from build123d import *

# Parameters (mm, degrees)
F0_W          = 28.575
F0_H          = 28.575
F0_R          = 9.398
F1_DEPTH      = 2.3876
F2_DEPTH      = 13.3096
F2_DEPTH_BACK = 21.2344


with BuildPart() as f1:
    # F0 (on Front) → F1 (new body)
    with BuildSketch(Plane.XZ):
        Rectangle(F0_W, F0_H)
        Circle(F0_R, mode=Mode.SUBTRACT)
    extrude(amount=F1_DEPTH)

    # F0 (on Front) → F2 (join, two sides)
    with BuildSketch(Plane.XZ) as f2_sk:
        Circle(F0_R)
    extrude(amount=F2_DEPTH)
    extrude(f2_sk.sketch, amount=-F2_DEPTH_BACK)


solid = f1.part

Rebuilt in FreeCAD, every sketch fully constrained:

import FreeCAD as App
import Part
import Sketcher
Q = App.Units.Quantity

doc = App.newDocument("Part")
params = doc.addObject("Spreadsheet::Sheet", "Params")
for row, (alias, value) in enumerate([
    ("sketch1_diameter", "0.74 in"),
    ("sketch1_width", "1.125 in"),
    ("pad1_length", "0.094 in"),
    ("sketch2_diameter", "0.74 in"),
    ("pad2_length", "0.524 in"),
    ("pad2_length2", "0.836 in"),
], start=1):
    params.set(f"A{row}", alias)
    params.set(f"B{row}", "=" + value)
    params.setAlias(f"B{row}", alias)

body = doc.addObject("PartDesign::Body", "Body")

# Sketch on XZ plane
sketch1 = doc.addObject("Sketcher::SketchObject", "Sketch")
body.addObject(sketch1)
sketch1.AttachmentSupport = (doc.XZ_Plane, [""])
sketch1.MapMode = "FlatFace"
sketch1.addGeometry([
    Part.LineSegment(App.Vector(-14, 14, 0), App.Vector(-14, -14, 0)),  # 0
    Part.LineSegment(App.Vector(-14, -14, 0), App.Vector(14, -14, 0)),  # 1
    Part.LineSegment(App.Vector(14, -14, 0), App.Vector(14, 14, 0)),  # 2
    Part.LineSegment(App.Vector(14, 14, 0), App.Vector(-14, 14, 0)),  # 3
    Part.Circle(App.Vector(0, 0, 0), App.Vector(0, 0, 1), 9),  # 4
], False)
sketch1.addConstraint([
    Sketcher.Constraint("Coincident", 0, 2, 1, 1),
    Sketcher.Constraint("Coincident", 1, 2, 2, 1),
    Sketcher.Constraint("Coincident", 2, 2, 3, 1),
    Sketcher.Constraint("Coincident", 3, 2, 0, 1),
    Sketcher.Constraint("Vertical", 0),
    Sketcher.Constraint("Horizontal", 1),
    Sketcher.Constraint("Vertical", 2),
    Sketcher.Constraint("Horizontal", 3),
    Sketcher.Constraint("Coincident", 4, 3, -1, 1),
    Sketcher.Constraint("Symmetric", 0, 2, 2, 2, -1, 1),
    Sketcher.Constraint("Equal", 3, 0),
    Sketcher.Constraint("Diameter", 4, Q("0.74 in")),
    Sketcher.Constraint("DistanceX", 1, 1, 1, 2, Q("1.125 in")),
])
sketch1.setExpression("Constraints[11]", "Params.sketch1_diameter")
sketch1.setExpression("Constraints[12]", "Params.sketch1_width")
pad1 = doc.addObject("PartDesign::Pad", "Pad")
body.addObject(pad1)
pad1.Profile = sketch1
pad1.setExpression("Length", "Params.pad1_length")

# Sketch on XZ plane
sketch2 = doc.addObject("Sketcher::SketchObject", "Sketch001")
body.addObject(sketch2)
sketch2.AttachmentSupport = (doc.XZ_Plane, [""])
sketch2.MapMode = "FlatFace"
sketch2.addGeometry(Part.Circle(App.Vector(0, 0, 0), App.Vector(0, 0, 1), 9), False)
sketch2.addConstraint([
    Sketcher.Constraint("Coincident", 0, 3, -1, 1),
    Sketcher.Constraint("Diameter", 0, Q("0.74 in")),
])
sketch2.setExpression("Constraints[1]", "Params.sketch2_diameter")
pad2 = doc.addObject("PartDesign::Pad", "Pad001")
body.addObject(pad2)
pad2.Profile = sketch2
pad2.Type = "TwoLengths"
pad2.setExpression("Length", "Params.pad2_length")
pad2.setExpression("Length2", "Params.pad2_length2")

doc.recompute()
